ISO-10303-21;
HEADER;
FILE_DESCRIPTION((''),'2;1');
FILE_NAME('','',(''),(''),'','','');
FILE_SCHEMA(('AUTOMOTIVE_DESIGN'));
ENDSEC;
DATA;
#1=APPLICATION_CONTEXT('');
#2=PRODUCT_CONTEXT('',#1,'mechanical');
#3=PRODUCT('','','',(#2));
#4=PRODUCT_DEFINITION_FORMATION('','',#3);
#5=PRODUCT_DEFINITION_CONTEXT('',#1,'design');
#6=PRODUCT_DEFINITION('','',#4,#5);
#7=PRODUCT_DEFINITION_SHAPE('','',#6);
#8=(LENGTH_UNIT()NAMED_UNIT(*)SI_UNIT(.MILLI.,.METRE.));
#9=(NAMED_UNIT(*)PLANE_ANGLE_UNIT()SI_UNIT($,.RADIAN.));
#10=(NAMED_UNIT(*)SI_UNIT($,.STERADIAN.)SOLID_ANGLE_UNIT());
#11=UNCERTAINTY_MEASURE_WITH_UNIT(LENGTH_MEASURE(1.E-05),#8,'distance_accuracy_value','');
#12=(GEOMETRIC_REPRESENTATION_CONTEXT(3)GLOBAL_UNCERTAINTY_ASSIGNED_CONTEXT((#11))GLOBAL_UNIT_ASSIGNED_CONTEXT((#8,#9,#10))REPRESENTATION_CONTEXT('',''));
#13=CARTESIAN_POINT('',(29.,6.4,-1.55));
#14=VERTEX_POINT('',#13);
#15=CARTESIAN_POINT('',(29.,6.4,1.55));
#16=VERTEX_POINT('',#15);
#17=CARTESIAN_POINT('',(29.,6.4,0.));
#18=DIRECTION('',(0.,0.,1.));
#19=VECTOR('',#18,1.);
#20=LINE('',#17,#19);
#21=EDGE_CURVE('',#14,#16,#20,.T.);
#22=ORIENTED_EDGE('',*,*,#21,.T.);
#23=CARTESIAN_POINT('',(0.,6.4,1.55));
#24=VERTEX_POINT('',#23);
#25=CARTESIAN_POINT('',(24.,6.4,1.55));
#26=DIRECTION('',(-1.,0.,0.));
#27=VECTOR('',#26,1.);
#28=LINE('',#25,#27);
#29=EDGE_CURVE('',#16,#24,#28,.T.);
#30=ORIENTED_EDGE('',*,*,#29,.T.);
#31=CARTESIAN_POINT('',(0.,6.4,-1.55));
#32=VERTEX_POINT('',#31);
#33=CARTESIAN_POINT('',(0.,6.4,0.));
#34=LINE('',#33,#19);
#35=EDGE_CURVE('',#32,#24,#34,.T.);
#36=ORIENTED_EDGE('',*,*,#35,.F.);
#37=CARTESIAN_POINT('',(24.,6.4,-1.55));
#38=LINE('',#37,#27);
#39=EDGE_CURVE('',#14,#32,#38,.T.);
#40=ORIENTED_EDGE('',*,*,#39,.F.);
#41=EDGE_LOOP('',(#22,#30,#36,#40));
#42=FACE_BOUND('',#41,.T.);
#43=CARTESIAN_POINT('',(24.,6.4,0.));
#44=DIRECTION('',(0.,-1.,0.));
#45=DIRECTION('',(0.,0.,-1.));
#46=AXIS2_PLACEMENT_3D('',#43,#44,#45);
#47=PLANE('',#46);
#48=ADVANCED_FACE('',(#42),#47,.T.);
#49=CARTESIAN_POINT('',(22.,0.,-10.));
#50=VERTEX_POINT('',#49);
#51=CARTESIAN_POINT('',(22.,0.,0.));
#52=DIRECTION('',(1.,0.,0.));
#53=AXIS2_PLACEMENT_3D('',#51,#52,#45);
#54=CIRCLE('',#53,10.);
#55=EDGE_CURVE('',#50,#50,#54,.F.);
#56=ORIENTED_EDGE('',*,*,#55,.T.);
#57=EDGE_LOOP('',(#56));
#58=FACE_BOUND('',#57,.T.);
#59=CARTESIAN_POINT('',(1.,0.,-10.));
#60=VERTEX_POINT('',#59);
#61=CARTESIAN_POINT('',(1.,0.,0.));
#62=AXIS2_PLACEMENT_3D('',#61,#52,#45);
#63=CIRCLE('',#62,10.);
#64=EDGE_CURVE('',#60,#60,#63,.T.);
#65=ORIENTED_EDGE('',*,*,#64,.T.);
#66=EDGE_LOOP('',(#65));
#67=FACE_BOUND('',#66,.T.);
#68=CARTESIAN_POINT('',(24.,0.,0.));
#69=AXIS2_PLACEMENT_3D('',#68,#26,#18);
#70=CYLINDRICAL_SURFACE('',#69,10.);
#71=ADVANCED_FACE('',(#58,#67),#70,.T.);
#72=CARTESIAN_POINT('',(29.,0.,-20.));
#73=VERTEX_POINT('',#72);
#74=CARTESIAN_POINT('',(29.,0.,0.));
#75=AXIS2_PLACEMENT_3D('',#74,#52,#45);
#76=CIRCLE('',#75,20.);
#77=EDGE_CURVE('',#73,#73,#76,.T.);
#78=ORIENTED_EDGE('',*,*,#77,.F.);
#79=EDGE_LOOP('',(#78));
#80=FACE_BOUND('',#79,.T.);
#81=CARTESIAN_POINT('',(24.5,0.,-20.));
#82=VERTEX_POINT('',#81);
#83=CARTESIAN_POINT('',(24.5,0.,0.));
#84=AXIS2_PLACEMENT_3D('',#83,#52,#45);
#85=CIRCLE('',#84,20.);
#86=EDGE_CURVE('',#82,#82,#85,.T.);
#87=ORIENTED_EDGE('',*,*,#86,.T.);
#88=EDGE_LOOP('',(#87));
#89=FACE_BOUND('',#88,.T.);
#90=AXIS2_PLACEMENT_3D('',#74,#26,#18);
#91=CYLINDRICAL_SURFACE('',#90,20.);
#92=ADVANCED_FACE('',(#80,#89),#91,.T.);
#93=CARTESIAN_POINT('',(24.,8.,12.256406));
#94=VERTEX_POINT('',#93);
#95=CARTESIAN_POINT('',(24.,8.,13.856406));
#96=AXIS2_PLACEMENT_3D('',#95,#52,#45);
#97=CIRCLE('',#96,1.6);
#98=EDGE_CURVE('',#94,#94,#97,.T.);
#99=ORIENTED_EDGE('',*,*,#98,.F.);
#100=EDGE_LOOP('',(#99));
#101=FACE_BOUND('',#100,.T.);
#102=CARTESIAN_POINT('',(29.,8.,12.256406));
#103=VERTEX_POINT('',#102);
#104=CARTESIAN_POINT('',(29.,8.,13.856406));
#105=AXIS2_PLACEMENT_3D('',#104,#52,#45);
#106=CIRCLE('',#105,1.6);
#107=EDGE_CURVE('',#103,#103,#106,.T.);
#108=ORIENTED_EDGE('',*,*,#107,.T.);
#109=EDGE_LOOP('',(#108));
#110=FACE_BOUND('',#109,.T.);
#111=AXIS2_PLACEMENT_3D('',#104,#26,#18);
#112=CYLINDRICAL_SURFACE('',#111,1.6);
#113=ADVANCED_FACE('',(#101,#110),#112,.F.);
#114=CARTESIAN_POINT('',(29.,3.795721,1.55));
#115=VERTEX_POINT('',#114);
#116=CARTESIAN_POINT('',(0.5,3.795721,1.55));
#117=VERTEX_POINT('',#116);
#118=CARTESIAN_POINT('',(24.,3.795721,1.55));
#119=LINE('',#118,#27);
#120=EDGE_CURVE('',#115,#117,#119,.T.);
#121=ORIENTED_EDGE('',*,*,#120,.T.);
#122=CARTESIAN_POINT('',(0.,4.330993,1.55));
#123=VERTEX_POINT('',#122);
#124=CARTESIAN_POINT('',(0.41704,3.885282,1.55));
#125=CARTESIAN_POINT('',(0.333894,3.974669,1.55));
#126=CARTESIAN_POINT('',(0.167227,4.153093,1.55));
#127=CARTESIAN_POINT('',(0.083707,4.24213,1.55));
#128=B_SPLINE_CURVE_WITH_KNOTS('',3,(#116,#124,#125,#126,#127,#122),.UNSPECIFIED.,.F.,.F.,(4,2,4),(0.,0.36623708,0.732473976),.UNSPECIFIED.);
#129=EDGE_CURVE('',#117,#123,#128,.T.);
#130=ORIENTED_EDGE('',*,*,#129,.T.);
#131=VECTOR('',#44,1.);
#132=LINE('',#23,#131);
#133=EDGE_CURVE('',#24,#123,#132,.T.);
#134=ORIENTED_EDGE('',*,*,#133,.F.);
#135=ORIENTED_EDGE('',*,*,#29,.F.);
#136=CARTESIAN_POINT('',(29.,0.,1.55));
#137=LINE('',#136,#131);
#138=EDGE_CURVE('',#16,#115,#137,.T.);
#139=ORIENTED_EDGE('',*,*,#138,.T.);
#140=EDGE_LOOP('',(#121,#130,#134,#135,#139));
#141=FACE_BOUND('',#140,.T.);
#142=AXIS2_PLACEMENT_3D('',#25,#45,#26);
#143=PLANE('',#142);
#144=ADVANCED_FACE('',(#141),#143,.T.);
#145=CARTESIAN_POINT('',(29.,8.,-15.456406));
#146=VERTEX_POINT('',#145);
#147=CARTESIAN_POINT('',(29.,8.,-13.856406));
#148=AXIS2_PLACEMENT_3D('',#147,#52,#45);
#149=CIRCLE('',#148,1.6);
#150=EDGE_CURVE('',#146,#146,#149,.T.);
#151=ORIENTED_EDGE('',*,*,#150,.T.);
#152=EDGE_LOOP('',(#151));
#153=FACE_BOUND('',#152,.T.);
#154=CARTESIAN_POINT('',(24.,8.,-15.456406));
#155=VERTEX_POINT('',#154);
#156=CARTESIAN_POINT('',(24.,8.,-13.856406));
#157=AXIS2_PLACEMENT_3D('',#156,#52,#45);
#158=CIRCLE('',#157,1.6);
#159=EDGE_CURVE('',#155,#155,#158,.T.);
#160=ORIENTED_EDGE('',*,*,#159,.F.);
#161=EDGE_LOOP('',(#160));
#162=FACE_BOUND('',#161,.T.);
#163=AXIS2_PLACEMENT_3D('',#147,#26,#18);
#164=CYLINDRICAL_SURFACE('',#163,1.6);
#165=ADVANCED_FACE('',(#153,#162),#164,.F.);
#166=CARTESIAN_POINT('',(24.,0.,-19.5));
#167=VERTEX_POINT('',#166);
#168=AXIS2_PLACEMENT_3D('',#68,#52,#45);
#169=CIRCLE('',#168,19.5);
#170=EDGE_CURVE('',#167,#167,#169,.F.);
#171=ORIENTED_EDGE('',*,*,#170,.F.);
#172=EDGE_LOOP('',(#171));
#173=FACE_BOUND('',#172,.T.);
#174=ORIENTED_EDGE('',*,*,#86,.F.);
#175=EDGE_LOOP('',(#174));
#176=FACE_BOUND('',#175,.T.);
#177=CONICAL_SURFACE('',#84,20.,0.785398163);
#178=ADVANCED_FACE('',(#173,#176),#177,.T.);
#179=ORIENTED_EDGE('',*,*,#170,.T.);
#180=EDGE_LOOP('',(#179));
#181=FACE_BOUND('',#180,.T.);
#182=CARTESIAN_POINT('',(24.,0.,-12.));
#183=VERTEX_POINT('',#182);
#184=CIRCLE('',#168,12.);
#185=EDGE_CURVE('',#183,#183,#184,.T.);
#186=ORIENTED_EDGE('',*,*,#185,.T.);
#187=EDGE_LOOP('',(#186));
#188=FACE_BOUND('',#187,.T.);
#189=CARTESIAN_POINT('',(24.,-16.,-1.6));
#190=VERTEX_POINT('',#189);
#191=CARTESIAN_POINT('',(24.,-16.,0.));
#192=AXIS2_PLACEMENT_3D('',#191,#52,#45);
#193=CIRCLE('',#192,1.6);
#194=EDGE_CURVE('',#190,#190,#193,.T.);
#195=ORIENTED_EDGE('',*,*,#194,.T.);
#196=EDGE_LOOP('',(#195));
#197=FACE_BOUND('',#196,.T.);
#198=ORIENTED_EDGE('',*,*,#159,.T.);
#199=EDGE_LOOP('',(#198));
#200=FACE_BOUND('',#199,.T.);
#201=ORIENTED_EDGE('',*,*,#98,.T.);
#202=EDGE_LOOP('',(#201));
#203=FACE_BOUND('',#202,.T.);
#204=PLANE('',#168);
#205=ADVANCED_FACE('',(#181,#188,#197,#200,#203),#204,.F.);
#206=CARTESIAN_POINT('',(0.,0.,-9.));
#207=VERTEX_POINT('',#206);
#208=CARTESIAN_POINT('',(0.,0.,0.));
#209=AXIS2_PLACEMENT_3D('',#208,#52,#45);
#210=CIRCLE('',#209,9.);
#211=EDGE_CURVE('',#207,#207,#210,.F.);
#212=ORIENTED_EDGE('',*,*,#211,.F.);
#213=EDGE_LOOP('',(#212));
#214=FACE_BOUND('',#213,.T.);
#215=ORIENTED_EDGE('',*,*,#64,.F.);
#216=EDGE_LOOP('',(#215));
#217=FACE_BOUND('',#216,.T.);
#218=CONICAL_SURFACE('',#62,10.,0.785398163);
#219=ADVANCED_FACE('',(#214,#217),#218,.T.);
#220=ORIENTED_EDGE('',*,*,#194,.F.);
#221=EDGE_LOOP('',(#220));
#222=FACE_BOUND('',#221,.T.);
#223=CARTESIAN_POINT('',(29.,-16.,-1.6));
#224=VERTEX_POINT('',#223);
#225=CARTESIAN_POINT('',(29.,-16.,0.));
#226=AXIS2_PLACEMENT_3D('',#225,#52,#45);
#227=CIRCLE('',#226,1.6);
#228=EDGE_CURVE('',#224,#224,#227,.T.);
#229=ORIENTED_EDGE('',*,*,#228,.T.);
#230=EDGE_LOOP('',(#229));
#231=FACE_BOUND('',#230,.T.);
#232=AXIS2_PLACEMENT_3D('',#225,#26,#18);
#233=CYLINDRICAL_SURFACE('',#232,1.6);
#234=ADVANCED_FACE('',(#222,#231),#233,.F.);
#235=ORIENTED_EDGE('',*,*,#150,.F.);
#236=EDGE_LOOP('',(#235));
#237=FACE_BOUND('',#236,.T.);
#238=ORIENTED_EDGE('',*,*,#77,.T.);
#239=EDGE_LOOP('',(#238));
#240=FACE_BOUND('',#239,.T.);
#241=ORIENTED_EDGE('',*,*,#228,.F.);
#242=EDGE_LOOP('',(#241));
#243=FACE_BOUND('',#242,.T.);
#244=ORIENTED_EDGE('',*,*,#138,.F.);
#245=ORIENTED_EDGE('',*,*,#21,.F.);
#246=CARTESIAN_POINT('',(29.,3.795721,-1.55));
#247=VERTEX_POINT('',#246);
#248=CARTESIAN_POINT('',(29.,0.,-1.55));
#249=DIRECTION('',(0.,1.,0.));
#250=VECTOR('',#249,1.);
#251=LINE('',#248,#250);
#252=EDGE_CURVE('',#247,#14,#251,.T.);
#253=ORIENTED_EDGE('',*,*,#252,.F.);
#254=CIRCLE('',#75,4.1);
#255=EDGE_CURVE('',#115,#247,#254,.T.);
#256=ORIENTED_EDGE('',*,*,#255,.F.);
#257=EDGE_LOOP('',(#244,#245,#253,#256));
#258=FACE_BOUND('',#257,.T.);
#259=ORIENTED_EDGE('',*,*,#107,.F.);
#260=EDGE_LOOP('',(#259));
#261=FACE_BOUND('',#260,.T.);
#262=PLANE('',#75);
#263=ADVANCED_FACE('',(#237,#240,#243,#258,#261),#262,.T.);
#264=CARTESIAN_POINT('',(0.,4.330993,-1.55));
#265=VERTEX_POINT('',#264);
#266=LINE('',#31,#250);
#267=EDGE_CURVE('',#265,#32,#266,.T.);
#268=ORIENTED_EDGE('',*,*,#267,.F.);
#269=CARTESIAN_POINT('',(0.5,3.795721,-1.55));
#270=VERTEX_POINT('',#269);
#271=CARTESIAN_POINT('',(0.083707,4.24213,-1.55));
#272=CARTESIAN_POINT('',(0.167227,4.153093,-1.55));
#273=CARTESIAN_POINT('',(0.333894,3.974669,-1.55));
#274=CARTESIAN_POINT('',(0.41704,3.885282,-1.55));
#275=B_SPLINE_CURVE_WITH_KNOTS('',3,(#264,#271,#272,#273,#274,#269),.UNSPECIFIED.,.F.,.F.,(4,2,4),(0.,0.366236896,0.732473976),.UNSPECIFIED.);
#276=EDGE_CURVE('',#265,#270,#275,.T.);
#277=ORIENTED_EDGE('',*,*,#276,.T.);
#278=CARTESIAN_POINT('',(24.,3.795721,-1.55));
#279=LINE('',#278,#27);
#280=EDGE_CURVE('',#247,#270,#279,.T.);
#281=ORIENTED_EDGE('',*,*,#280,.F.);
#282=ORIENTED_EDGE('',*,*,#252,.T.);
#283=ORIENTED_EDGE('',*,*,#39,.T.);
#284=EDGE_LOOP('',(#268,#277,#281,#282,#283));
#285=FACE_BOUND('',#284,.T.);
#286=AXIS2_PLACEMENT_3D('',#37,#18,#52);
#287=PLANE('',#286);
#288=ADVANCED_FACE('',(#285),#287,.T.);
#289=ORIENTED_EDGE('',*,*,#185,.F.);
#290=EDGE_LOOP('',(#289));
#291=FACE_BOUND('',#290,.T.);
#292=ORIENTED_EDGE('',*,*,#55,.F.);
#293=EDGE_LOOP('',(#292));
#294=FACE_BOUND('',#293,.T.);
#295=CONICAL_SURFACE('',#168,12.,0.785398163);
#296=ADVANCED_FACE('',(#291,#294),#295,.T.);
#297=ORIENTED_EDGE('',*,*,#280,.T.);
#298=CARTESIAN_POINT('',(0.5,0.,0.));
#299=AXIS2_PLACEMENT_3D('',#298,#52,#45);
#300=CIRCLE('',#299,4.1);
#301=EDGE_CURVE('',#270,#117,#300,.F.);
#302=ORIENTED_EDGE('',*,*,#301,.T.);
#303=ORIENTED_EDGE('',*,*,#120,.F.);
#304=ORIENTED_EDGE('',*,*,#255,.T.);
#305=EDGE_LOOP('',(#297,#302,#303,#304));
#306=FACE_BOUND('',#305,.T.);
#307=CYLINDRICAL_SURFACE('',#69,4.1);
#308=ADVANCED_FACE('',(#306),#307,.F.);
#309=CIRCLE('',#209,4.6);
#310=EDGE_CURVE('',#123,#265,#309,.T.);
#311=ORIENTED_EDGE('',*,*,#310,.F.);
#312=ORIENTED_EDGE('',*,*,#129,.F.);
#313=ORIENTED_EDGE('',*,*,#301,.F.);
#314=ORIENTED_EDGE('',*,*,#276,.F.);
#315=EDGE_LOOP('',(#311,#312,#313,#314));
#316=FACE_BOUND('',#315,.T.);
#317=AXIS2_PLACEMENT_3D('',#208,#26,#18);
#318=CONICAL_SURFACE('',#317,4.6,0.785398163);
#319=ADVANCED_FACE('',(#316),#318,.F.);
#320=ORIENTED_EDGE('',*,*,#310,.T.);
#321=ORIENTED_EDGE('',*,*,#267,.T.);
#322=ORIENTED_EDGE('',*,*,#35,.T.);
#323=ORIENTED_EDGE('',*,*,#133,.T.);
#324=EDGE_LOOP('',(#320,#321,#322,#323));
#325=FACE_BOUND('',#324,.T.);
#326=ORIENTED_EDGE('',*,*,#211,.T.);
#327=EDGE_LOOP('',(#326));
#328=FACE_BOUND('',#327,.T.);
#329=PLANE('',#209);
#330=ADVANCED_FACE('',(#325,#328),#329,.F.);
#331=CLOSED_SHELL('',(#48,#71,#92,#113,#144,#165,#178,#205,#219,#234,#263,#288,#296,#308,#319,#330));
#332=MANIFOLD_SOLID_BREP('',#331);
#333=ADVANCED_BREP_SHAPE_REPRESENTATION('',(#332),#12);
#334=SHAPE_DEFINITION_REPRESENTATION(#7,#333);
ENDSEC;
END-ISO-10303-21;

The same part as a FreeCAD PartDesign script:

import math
import FreeCAD as App
import Part
import Sketcher
Q = App.Units.Quantity


def edges_at(feature, points):
    """Names of the edges that pass closest to the given points."""
    edges = feature.Shape.Edges
    near = lambda p: min(range(len(edges)), key=lambda i: edges[i].distToShape(Part.Vertex(*p))[0])
    return sorted({f"Edge{near(p) + 1}" for p in points})

doc = App.newDocument("Part")
body = doc.addObject("PartDesign::Body", "Body")

# Sketch on YZ plane
sketch1 = body.newObject("Sketcher::SketchObject", "Sketch")
sketch1.AttachmentSupport = (doc.getObject("YZ_Plane"), [""])
sketch1.MapMode = "FlatFace"
sketch1.addGeometry([
    Part.Circle(App.Vector(0, 0, 0), App.Vector(0, 0, 1), 10),  # 0
    Part.LineSegment(App.Vector(3.8, 1.6, 0), App.Vector(6.4, 1.6, 0)),  # 1
    Part.LineSegment(App.Vector(6.4, 1.6, 0), App.Vector(6.4, -1.6, 0)),  # 2
    Part.LineSegment(App.Vector(6.4, -1.6, 0), App.Vector(3.8, -1.6, 0)),  # 3
    Part.ArcOfCircle(Part.Circle(App.Vector(0, 0, 0), App.Vector(0, 0, 1), 4.1), math.radians(22), math.radians(338)),  # 4
], False)
sketch1.addConstraint([
    Sketcher.Constraint("Coincident", 1, 2, 2, 1),
    Sketcher.Constraint("Coincident", 2, 2, 3, 1),
    Sketcher.Constraint("Coincident", 3, 2, 4, 2),
    Sketcher.Constraint("Coincident", 4, 1, 1, 1),
    Sketcher.Constraint("Horizontal", 1),
    Sketcher.Constraint("Vertical", 2),
    Sketcher.Constraint("Horizontal", 3),
    Sketcher.Constraint("Coincident", 0, 3, -1, 1),
    Sketcher.Constraint("Coincident", 4, 3, -1, 1),
    Sketcher.Constraint("Vertical", 3, 2, 4, 1),
    Sketcher.Constraint("Diameter", 0, Q("20 mm")),
    Sketcher.Constraint("Radius", 4, Q("4.1 mm")),
    Sketcher.Constraint("DistanceY", 2, 2, 2, 1, Q("3.1 mm")),
    Sketcher.Constraint("DistanceX", -1, 1, 1, 2, Q("6.4 mm")),
])
pad1 = body.newObject("PartDesign::Pad", "Pad")
pad1.Profile = sketch1
pad1.Length = 24

# Sketch on YZ plane
sketch2 = body.newObject("Sketcher::SketchObject", "Sketch001")
sketch2.AttachmentSupport = (doc.getObject("YZ_Plane"), [""])
sketch2.MapMode = "FlatFace"
sketch2.AttachmentOffset = App.Placement(App.Vector(0, 0, 24), App.Rotation())
sketch2.addGeometry([
    Part.Circle(App.Vector(0, 0, 0), App.Vector(0, 0, 1), 20),
    Part.Circle(App.Vector(-16, 0, 0), App.Vector(0, 0, 1), 1.6),
    Part.Circle(App.Vector(8, 13.9, 0), App.Vector(0, 0, 1), 1.6),
    Part.Circle(App.Vector(8, -13.9, 0), App.Vector(0, 0, 1), 1.6),
], False)
sketch2.addConstraint([
    Sketcher.Constraint("Coincident", 0, 3, -1, 1),
    Sketcher.Constraint("Equal", 1, 2),
    Sketcher.Constraint("Equal", 2, 3),
    Sketcher.Constraint("Symmetric", 2, 3, 3, 3, -1),
    Sketcher.Constraint("PointOnObject", 1, 3, -1),
    Sketcher.Constraint("Diameter", 0, Q("40 mm")),
    Sketcher.Constraint("Diameter", 1, Q("3.2 mm")),
    Sketcher.Constraint("DistanceX", 1, 3, -1, 1, Q("16 mm")),
    Sketcher.Constraint("DistanceX", -1, 1, 2, 3, Q("8 mm")),
    Sketcher.Constraint("DistanceY", -1, 1, 2, 3, Q("13.856406 mm")),
])
pad2 = body.newObject("PartDesign::Pad", "Pad001")
pad2.Profile = sketch2
pad2.Length = 5
doc.recompute()

chamfer = body.newObject("PartDesign::Chamfer", "Chamfer")
chamfer.Base = (pad2, edges_at(pad2, [(0, -4.1, 0)]))
chamfer.Size = 0.5
doc.recompute()

chamfer2 = body.newObject("PartDesign::Chamfer", "Chamfer001")
chamfer2.Base = (chamfer, edges_at(chamfer, [(0, 0, 10)]))
chamfer2.Size = 1
doc.recompute()

chamfer3 = body.newObject("PartDesign::Chamfer", "Chamfer002")
chamfer3.Base = (chamfer2, edges_at(chamfer2, [(24, 0, 20)]))
chamfer3.Size = 0.5
doc.recompute()

chamfer4 = body.newObject("PartDesign::Chamfer", "Chamfer003")
chamfer4.Base = (chamfer3, edges_at(chamfer3, [(24, 0, 10)]))
chamfer4.Size = 2

# Sketch on YZ plane
sketch3 = body.newObject("Sketcher::SketchObject", "Sketch002")
sketch3.AttachmentSupport = (doc.getObject("YZ_Plane"), [""])
sketch3.MapMode = "FlatFace"
sketch3.AttachmentOffset = App.Placement(App.Vector(0, 0, 24), App.Rotation())
sketch3.addGeometry([
    Part.LineSegment(App.Vector(6.4, -1.6, 0), App.Vector(3.8, -1.6, 0)),
    Part.ArcOfCircle(Part.Circle(App.Vector(0, 0, 0), App.Vector(0, 0, 1), 4.1), math.radians(22), math.radians(338)),
    Part.LineSegment(App.Vector(3.8, 1.6, 0), App.Vector(6.4, 1.6, 0)),
    Part.LineSegment(App.Vector(6.4, 1.6, 0), App.Vector(6.4, -1.6, 0)),
], False)
sketch3.addConstraint([
    Sketcher.Constraint("Coincident", 0, 2, 1, 2),
    Sketcher.Constraint("Coincident", 1, 1, 2, 1),
    Sketcher.Constraint("Coincident", 2, 2, 3, 1),
    Sketcher.Constraint("Coincident", 3, 2, 0, 1),
    Sketcher.Constraint("Horizontal", 0),
    Sketcher.Constraint("Horizontal", 2),
    Sketcher.Constraint("Vertical", 3),
    Sketcher.Constraint("Coincident", 1, 3, -1, 1),
    Sketcher.Constraint("Vertical", 0, 2, 1, 1),
    Sketcher.Constraint("Radius", 1, Q("4.1 mm")),
    Sketcher.Constraint("DistanceY", 3, 2, 3, 1, Q("3.1 mm")),
    Sketcher.Constraint("DistanceX", -1, 1, 2, 2, Q("6.4 mm")),
])
pocket1 = body.newObject("PartDesign::Pocket", "Pocket")
pocket1.Profile = sketch3
pocket1.Length = 10
pocket1.Reversed = True

doc.recompute()
